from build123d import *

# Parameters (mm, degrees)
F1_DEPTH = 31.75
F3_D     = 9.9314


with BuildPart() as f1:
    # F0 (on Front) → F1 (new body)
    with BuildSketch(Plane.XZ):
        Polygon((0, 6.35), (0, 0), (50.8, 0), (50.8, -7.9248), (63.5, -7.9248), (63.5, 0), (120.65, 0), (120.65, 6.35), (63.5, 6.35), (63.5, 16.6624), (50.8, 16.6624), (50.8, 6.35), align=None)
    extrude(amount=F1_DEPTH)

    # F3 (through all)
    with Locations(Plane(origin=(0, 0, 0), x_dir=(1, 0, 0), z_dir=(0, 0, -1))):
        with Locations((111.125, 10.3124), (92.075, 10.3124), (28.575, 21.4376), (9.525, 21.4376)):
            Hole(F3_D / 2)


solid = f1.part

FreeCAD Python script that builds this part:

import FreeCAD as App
import Part
import Sketcher
from FreeCAD import Vector
Q = App.Units.Quantity

doc = App.newDocument("Part")
body = doc.addObject("PartDesign::Body", "Body")

# Sketch on XZ plane
sketch1 = body.newObject("Sketcher::SketchObject", "Sketch")
sketch1.AttachmentSupport = (doc.getObject("XZ_Plane"), [""])
sketch1.MapMode = "FlatFace"
sketch1.addGeometry(Part.LineSegment(Vector(0, 6.35, 0), Vector(0, 0, 0)), False)
sketch1.addGeometry(Part.LineSegment(Vector(0, 0, 0), Vector(50.8, 0, 0)), False)
sketch1.addGeometry(Part.LineSegment(Vector(50.8, 0, 0), Vector(50.8, -7.9248, 0)), False)
sketch1.addGeometry(Part.LineSegment(Vector(50.8, -7.9248, 0), Vector(63.5, -7.9248, 0)), False)
sketch1.addGeometry(Part.LineSegment(Vector(63.5, -7.9248, 0), Vector(63.5, 0, 0)), False)
sketch1.addGeometry(Part.LineSegment(Vector(63.5, 0, 0), Vector(120.65, 0, 0)), False)
sketch1.addGeometry(Part.LineSegment(Vector(120.65, 0, 0), Vector(120.65, 6.35, 0)), False)
sketch1.addGeometry(Part.LineSegment(Vector(120.65, 6.35, 0), Vector(63.5, 6.35, 0)), False)
sketch1.addGeometry(Part.LineSegment(Vector(63.5, 6.35, 0), Vector(63.5, 16.6624, 0)), False)
sketch1.addGeometry(Part.LineSegment(Vector(63.5, 16.6624, 0), Vector(50.8, 16.6624, 0)), False)
sketch1.addGeometry(Part.LineSegment(Vector(50.8, 16.6624, 0), Vector(50.8, 6.35, 0)), False)
sketch1.addGeometry(Part.LineSegment(Vector(50.8, 6.35, 0), Vector(0, 6.35, 0)), False)
sketch1.addConstraint(Sketcher.Constraint("Coincident", 0, 2, 1, 1))
sketch1.addConstraint(Sketcher.Constraint("Coincident", 1, 2, 2, 1))
sketch1.addConstraint(Sketcher.Constraint("Coincident", 2, 2, 3, 1))
sketch1.addConstraint(Sketcher.Constraint("Coincident", 3, 2, 4, 1))
sketch1.addConstraint(Sketcher.Constraint("Coincident", 4, 2, 5, 1))
sketch1.addConstraint(Sketcher.Constraint("Coincident", 5, 2, 6, 1))
sketch1.addConstraint(Sketcher.Constraint("Coincident", 6, 2, 7, 1))
sketch1.addConstraint(Sketcher.Constraint("Coincident", 7, 2, 8, 1))
sketch1.addConstraint(Sketcher.Constraint("Coincident", 8, 2, 9, 1))
sketch1.addConstraint(Sketcher.Constraint("Coincident", 9, 2, 10, 1))
sketch1.addConstraint(Sketcher.Constraint("Coincident", 10, 2, 11, 1))
sketch1.addConstraint(Sketcher.Constraint("Coincident", 11, 2, 0, 1))
sketch1.addConstraint(Sketcher.Constraint("Vertical", 0))
sketch1.addConstraint(Sketcher.Constraint("Horizontal", 1))
sketch1.addConstraint(Sketcher.Constraint("Vertical", 2))
sketch1.addConstraint(Sketcher.Constraint("Horizontal", 3))
sketch1.addConstraint(Sketcher.Constraint("Vertical", 4))
sketch1.addConstraint(Sketcher.Constraint("Horizontal", 5))
sketch1.addConstraint(Sketcher.Constraint("Vertical", 6))
sketch1.addConstraint(Sketcher.Constraint("Horizontal", 7))
sketch1.addConstraint(Sketcher.Constraint("Vertical", 8))
sketch1.addConstraint(Sketcher.Constraint("Horizontal", 9))
sketch1.addConstraint(Sketcher.Constraint("Vertical", 10))
sketch1.addConstraint(Sketcher.Constraint("Horizontal", 11))
sketch1.addConstraint(Sketcher.Constraint("Coincident", 0, 2, -1, 1))
sketch1.addConstraint(Sketcher.Constraint("PointOnObject", 4, 2, -1))
sketch1.addConstraint(Sketcher.Constraint("Horizontal", 7, 2, 10, 2))
sketch1.addConstraint(Sketcher.Constraint("Vertical", 4, 2, 7, 2))
sketch1.addConstraint(Sketcher.Constraint("Vertical", 2, 2, 9, 2))
sketch1.addConstraint(Sketcher.Constraint("DistanceX", 1, 1, 1, 2, Q("2 in")))
sketch1.addConstraint(Sketcher.Constraint("DistanceX", 3, 1, 3, 2, Q("0.5 in")))
sketch1.addConstraint(Sketcher.Constraint("DistanceX", 5, 1, 5, 2, Q("2.25 in")))
sketch1.addConstraint(Sketcher.Constraint("DistanceY", 0, 2, 0, 1, Q("0.25 in")))
sketch1.addConstraint(Sketcher.Constraint("DistanceY", 2, 2, 2, 1, Q("0.312 in")))
sketch1.addConstraint(Sketcher.Constraint("DistanceY", 8, 1, 8, 2, Q("0.406 in")))
pad1 = body.newObject("PartDesign::Pad", "Pad")
pad1.Profile = sketch1
pad1.Length = Q("1.25 in")

# Sketch on XY plane
sketch2 = body.newObject("Sketcher::SketchObject", "Sketch001")
sketch2.AttachmentSupport = (doc.getObject("XY_Plane"), [""])
sketch2.MapMode = "FlatFace"
sketch2.addGeometry(Part.Circle(Vector(111.125, -10.3124, 0), Vector(0, 0, 1), 4.9657), False)
sketch2.addGeometry(Part.Circle(Vector(92.075, -10.3124, 0), Vector(0, 0, 1), 4.9657), False)
sketch2.addGeometry(Part.Circle(Vector(28.575, -21.4376, 0), Vector(0, 0, 1), 4.9657), False)
sketch2.addGeometry(Part.Circle(Vector(9.525, -21.4376, 0), Vector(0, 0, 1), 4.9657), False)
sketch2.addConstraint(Sketcher.Constraint("Equal", 0, 1))
sketch2.addConstraint(Sketcher.Constraint("Equal", 1, 2))
sketch2.addConstraint(Sketcher.Constraint("Equal", 2, 3))
sketch2.addConstraint(Sketcher.Constraint("Horizontal", 0, 3, 1, 3))
sketch2.addConstraint(Sketcher.Constraint("Horizontal", 2, 3, 3, 3))
sketch2.addConstraint(Sketcher.Constraint("Diameter", 0, Q("0.391 in")))
sketch2.addConstraint(Sketcher.Constraint("DistanceX", 3, 3, 0, 3, Q("4 in")))
sketch2.addConstraint(Sketcher.Constraint("DistanceX", 2, 3, 1, 3, Q("2.5 in")))
sketch2.addConstraint(Sketcher.Constraint("DistanceX", 1, 3, 0, 3, Q("0.75 in")))
sketch2.addConstraint(Sketcher.Constraint("DistanceX", -1, 1, 0, 3, Q("4.375 in")))
sketch2.addConstraint(Sketcher.Constraint("DistanceY", 0, 3, -1, 1, Q("0.406 in")))
sketch2.addConstraint(Sketcher.Constraint("DistanceY", 2, 3, -1, 1, Q("0.844 in")))
doc.recompute()
hole = body.newObject("PartDesign::Hole", "Hole")
hole.Profile = sketch2
hole.ThreadType = "None"
hole.Diameter = Q("0.391 in")
hole.DepthType = "ThroughAll"
hole.Reversed = True

doc.recompute()
